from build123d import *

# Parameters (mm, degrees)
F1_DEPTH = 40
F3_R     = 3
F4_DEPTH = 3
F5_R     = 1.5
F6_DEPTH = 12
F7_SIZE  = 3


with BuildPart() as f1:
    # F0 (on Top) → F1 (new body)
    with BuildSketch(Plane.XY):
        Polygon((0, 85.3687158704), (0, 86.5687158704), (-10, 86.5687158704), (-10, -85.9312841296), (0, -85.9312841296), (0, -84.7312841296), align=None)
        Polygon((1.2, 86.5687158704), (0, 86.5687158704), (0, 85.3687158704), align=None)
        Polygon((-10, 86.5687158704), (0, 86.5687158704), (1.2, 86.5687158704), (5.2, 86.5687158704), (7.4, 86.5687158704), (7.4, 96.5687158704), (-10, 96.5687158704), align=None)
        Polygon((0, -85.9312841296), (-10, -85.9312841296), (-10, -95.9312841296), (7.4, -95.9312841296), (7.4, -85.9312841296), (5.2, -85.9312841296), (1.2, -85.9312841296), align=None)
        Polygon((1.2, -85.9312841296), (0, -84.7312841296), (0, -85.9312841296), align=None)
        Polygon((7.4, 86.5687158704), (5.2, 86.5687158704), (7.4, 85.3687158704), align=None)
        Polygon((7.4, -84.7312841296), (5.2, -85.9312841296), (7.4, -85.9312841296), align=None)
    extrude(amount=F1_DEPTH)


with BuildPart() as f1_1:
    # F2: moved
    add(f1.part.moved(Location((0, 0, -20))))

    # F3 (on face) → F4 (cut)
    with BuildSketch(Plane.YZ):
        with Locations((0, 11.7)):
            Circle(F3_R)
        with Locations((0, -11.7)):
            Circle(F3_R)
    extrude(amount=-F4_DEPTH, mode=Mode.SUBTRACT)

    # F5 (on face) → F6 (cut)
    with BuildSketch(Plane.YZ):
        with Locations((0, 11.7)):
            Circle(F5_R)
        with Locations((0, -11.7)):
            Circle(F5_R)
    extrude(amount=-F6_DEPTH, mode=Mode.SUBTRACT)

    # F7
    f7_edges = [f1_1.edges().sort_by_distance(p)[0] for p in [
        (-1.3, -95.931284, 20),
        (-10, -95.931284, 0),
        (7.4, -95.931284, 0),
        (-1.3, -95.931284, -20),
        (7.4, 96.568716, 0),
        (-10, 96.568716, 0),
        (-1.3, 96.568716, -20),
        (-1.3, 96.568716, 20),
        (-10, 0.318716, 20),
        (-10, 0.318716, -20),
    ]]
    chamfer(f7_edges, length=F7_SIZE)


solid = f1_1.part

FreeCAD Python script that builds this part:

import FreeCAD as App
import Part
import Sketcher

V = App.Vector
Q = App.Units.Quantity


def edges_at(feature, points):
    """Names of the edges that pass closest to the given points."""
    edges = feature.Shape.Edges
    near = lambda p: min(range(len(edges)), key=lambda i: edges[i].distToShape(Part.Vertex(*p))[0])
    return sorted({f"Edge{near(p) + 1}" for p in points})


def add_polygon(sketch, points):
    """Adds a closed chain of lines whose ends are joined by coincident constraints."""
    first, n = sketch.GeometryCount, len(points)
    for a, b in zip(points, points[1:] + points[:1]):
        sketch.addGeometry(Part.LineSegment(App.Vector(*a, 0), App.Vector(*b, 0)), False)
    for i in range(n):
        sketch.addConstraint(Sketcher.Constraint("Coincident", first + i, 2, first + (i + 1) % n, 1))

doc = App.newDocument("Part")
params = doc.addObject("Spreadsheet::Sheet", "Params")
for row, (alias, value) in enumerate([
    ("sketch1_width", "4 mm"),
    ("sketch1_width2", "17.4 mm"),
    ("sketch1_height", "170.1 mm"),
    ("sketch1_height2", "11.2 mm"),
    ("pad1_length", "40 mm"),
    ("sketch2_diameter", "6 mm"),
    ("pocket1_length", "3 mm"),
    ("sketch3_diameter", "3 mm"),
    ("pocket2_length", "12 mm"),
    ("chamfer_size", "3 mm"),
], start=1):
    params.set(f"A{row}", alias)
    params.set(f"B{row}", "=" + value)
    params.setAlias(f"B{row}", alias)

body = doc.addObject("PartDesign::Body", "Body")

sketch1 = body.newObject("Sketcher::SketchObject", "Sketch")
sketch1.AttachmentSupport = (doc.getObject("XY_Plane"), [""])
sketch1.MapMode = "FlatFace"
add_polygon(sketch1, [(0, -84.7), (0, 85.4), (1.2, 86.6), (5.2, 86.6), (7.4, 85.4), (7.4, 96.6), (-10, 96.6), (-10, -95.9), (7.4, -95.9), (7.4, -84.7), (5.2, -85.9), (1.2, -85.9)])
sketch1.addConstraint([
    Sketcher.Constraint("Vertical", 0),
    Sketcher.Constraint("Horizontal", 2),
    Sketcher.Constraint("Vertical", 4),
    Sketcher.Constraint("Horizontal", 5),
    Sketcher.Constraint("Vertical", 6),
    Sketcher.Constraint("Horizontal", 7),
    Sketcher.Constraint("Vertical", 8),
    Sketcher.Constraint("Horizontal", 10),
    Sketcher.Constraint("PointOnObject", 0, 2, -2),
    Sketcher.Constraint("Perpendicular", 1, 11),
    Sketcher.Constraint("Horizontal", 0, 2, 3, 2),
    Sketcher.Constraint("Horizontal", 8, 2, 11, 2),
    Sketcher.Constraint("Vertical", 4, 2, 7, 2),
    Sketcher.Constraint("Vertical", 2, 2, 9, 2),
    Sketcher.Constraint("Vertical", 1, 2, 10, 2),
    Sketcher.Constraint("Equal", 4, 8),
    Sketcher.Constraint("Equal", 3, 9),
    Sketcher.Constraint("DistanceX", 2, 1, 2, 2, Q("4 mm")),
    Sketcher.Constraint("DistanceX", 5, 2, 5, 1, Q("17.4 mm")),
    Sketcher.Constraint("DistanceY", 0, 1, 0, 2, Q("170.1 mm")),
    Sketcher.Constraint("DistanceY", 4, 1, 4, 2, Q("11.2 mm")),
    Sketcher.Constraint("DistanceX", 5, 2, -1, 1, Q("10 mm")),
    Sketcher.Constraint("DistanceY", 2, 2, 4, 2, Q("10 mm")),
    Sketcher.Constraint("DistanceY", -1, 1, 0, 2, Q("85.368716 mm")),
])
sketch1.setExpression("Constraints[29]", "Params.sketch1_width")
sketch1.setExpression("Constraints[30]", "Params.sketch1_width2")
sketch1.setExpression("Constraints[31]", "Params.sketch1_height")
sketch1.setExpression("Constraints[32]", "Params.sketch1_height2")
pad1 = body.newObject("PartDesign::Pad", "Pad")
pad1.Profile = sketch1
pad1.setExpression("Length", "Params.pad1_length")
body2 = doc.addObject("PartDesign::Body", "Body001")
doc.recompute()

body.Placement = App.Placement(V(0, 0, -20), App.Rotation(V(0, 0, 1), 0))
boolean = body2.newObject("PartDesign::Boolean", "Boolean")
boolean.Type = "Fuse"
boolean.addObjects([body])

sketch2 = body2.newObject("Sketcher::SketchObject", "Sketch001")
sketch2.AttachmentSupport = (doc.getObject("YZ_Plane001"), [""])
sketch2.MapMode = "FlatFace"
sketch2.addGeometry([
    Part.Circle(V(0, 11.7, 0), V(0, 0, 1), 3),
    Part.Circle(V(0, -11.7, 0), V(0, 0, 1), 3),
], False)
sketch2.addConstraint([
    Sketcher.Constraint("Equal", 0, 1),
    Sketcher.Constraint("Symmetric", 0, 3, 1, 3, -1, 1),
    Sketcher.Constraint("PointOnObject", 0, 3, -2),
    Sketcher.Constraint("Diameter", 0, Q("6 mm")),
    Sketcher.Constraint("DistanceY", -1, 1, 0, 3, Q("11.7 mm")),
])
sketch2.setExpression("Constraints[3]", "Params.sketch2_diameter")
pocket1 = body2.newObject("PartDesign::Pocket", "Pocket")
pocket1.Profile = sketch2
pocket1.setExpression("Length", "Params.pocket1_length")

sketch3 = body2.newObject("Sketcher::SketchObject", "Sketch002")
sketch3.AttachmentSupport = (doc.getObject("YZ_Plane001"), [""])
sketch3.MapMode = "FlatFace"
sketch3.addGeometry([
    Part.Circle(V(0, 11.7, 0), V(0, 0, 1), 1.5),
    Part.Circle(V(0, -11.7, 0), V(0, 0, 1), 1.5),
], False)
sketch3.addConstraint([
    Sketcher.Constraint("Equal", 0, 1),
    Sketcher.Constraint("Symmetric", 0, 3, 1, 3, -1, 1),
    Sketcher.Constraint("PointOnObject", 0, 3, -2),
    Sketcher.Constraint("Diameter", 0, Q("3 mm")),
    Sketcher.Constraint("DistanceY", -1, 1, 0, 3, Q("11.7 mm")),
])
sketch3.setExpression("Constraints[3]", "Params.sketch3_diameter")
pocket2 = body2.newObject("PartDesign::Pocket", "Pocket001")
pocket2.Profile = sketch3
pocket2.setExpression("Length", "Params.pocket2_length")
doc.recompute()

chamfer = body2.newObject("PartDesign::Chamfer", "Chamfer")
chamfer.Base = (pocket2, edges_at(pocket2, [
    (-1.3, -95.931, 20),
    (-10, -95.931, 0),
    (7.4, -95.931, 0),
    (-1.3, -95.931, -20),
    (7.4, 96.569, 0),
    (-10, 96.569, 0),
    (-1.3, 96.569, -20),
    (-1.3, 96.569, 20),
    (-10, 0.319, 20),
    (-10, 0.319, -20),
]))
chamfer.setExpression("Size", "Params.chamfer_size")

doc.recompute()
